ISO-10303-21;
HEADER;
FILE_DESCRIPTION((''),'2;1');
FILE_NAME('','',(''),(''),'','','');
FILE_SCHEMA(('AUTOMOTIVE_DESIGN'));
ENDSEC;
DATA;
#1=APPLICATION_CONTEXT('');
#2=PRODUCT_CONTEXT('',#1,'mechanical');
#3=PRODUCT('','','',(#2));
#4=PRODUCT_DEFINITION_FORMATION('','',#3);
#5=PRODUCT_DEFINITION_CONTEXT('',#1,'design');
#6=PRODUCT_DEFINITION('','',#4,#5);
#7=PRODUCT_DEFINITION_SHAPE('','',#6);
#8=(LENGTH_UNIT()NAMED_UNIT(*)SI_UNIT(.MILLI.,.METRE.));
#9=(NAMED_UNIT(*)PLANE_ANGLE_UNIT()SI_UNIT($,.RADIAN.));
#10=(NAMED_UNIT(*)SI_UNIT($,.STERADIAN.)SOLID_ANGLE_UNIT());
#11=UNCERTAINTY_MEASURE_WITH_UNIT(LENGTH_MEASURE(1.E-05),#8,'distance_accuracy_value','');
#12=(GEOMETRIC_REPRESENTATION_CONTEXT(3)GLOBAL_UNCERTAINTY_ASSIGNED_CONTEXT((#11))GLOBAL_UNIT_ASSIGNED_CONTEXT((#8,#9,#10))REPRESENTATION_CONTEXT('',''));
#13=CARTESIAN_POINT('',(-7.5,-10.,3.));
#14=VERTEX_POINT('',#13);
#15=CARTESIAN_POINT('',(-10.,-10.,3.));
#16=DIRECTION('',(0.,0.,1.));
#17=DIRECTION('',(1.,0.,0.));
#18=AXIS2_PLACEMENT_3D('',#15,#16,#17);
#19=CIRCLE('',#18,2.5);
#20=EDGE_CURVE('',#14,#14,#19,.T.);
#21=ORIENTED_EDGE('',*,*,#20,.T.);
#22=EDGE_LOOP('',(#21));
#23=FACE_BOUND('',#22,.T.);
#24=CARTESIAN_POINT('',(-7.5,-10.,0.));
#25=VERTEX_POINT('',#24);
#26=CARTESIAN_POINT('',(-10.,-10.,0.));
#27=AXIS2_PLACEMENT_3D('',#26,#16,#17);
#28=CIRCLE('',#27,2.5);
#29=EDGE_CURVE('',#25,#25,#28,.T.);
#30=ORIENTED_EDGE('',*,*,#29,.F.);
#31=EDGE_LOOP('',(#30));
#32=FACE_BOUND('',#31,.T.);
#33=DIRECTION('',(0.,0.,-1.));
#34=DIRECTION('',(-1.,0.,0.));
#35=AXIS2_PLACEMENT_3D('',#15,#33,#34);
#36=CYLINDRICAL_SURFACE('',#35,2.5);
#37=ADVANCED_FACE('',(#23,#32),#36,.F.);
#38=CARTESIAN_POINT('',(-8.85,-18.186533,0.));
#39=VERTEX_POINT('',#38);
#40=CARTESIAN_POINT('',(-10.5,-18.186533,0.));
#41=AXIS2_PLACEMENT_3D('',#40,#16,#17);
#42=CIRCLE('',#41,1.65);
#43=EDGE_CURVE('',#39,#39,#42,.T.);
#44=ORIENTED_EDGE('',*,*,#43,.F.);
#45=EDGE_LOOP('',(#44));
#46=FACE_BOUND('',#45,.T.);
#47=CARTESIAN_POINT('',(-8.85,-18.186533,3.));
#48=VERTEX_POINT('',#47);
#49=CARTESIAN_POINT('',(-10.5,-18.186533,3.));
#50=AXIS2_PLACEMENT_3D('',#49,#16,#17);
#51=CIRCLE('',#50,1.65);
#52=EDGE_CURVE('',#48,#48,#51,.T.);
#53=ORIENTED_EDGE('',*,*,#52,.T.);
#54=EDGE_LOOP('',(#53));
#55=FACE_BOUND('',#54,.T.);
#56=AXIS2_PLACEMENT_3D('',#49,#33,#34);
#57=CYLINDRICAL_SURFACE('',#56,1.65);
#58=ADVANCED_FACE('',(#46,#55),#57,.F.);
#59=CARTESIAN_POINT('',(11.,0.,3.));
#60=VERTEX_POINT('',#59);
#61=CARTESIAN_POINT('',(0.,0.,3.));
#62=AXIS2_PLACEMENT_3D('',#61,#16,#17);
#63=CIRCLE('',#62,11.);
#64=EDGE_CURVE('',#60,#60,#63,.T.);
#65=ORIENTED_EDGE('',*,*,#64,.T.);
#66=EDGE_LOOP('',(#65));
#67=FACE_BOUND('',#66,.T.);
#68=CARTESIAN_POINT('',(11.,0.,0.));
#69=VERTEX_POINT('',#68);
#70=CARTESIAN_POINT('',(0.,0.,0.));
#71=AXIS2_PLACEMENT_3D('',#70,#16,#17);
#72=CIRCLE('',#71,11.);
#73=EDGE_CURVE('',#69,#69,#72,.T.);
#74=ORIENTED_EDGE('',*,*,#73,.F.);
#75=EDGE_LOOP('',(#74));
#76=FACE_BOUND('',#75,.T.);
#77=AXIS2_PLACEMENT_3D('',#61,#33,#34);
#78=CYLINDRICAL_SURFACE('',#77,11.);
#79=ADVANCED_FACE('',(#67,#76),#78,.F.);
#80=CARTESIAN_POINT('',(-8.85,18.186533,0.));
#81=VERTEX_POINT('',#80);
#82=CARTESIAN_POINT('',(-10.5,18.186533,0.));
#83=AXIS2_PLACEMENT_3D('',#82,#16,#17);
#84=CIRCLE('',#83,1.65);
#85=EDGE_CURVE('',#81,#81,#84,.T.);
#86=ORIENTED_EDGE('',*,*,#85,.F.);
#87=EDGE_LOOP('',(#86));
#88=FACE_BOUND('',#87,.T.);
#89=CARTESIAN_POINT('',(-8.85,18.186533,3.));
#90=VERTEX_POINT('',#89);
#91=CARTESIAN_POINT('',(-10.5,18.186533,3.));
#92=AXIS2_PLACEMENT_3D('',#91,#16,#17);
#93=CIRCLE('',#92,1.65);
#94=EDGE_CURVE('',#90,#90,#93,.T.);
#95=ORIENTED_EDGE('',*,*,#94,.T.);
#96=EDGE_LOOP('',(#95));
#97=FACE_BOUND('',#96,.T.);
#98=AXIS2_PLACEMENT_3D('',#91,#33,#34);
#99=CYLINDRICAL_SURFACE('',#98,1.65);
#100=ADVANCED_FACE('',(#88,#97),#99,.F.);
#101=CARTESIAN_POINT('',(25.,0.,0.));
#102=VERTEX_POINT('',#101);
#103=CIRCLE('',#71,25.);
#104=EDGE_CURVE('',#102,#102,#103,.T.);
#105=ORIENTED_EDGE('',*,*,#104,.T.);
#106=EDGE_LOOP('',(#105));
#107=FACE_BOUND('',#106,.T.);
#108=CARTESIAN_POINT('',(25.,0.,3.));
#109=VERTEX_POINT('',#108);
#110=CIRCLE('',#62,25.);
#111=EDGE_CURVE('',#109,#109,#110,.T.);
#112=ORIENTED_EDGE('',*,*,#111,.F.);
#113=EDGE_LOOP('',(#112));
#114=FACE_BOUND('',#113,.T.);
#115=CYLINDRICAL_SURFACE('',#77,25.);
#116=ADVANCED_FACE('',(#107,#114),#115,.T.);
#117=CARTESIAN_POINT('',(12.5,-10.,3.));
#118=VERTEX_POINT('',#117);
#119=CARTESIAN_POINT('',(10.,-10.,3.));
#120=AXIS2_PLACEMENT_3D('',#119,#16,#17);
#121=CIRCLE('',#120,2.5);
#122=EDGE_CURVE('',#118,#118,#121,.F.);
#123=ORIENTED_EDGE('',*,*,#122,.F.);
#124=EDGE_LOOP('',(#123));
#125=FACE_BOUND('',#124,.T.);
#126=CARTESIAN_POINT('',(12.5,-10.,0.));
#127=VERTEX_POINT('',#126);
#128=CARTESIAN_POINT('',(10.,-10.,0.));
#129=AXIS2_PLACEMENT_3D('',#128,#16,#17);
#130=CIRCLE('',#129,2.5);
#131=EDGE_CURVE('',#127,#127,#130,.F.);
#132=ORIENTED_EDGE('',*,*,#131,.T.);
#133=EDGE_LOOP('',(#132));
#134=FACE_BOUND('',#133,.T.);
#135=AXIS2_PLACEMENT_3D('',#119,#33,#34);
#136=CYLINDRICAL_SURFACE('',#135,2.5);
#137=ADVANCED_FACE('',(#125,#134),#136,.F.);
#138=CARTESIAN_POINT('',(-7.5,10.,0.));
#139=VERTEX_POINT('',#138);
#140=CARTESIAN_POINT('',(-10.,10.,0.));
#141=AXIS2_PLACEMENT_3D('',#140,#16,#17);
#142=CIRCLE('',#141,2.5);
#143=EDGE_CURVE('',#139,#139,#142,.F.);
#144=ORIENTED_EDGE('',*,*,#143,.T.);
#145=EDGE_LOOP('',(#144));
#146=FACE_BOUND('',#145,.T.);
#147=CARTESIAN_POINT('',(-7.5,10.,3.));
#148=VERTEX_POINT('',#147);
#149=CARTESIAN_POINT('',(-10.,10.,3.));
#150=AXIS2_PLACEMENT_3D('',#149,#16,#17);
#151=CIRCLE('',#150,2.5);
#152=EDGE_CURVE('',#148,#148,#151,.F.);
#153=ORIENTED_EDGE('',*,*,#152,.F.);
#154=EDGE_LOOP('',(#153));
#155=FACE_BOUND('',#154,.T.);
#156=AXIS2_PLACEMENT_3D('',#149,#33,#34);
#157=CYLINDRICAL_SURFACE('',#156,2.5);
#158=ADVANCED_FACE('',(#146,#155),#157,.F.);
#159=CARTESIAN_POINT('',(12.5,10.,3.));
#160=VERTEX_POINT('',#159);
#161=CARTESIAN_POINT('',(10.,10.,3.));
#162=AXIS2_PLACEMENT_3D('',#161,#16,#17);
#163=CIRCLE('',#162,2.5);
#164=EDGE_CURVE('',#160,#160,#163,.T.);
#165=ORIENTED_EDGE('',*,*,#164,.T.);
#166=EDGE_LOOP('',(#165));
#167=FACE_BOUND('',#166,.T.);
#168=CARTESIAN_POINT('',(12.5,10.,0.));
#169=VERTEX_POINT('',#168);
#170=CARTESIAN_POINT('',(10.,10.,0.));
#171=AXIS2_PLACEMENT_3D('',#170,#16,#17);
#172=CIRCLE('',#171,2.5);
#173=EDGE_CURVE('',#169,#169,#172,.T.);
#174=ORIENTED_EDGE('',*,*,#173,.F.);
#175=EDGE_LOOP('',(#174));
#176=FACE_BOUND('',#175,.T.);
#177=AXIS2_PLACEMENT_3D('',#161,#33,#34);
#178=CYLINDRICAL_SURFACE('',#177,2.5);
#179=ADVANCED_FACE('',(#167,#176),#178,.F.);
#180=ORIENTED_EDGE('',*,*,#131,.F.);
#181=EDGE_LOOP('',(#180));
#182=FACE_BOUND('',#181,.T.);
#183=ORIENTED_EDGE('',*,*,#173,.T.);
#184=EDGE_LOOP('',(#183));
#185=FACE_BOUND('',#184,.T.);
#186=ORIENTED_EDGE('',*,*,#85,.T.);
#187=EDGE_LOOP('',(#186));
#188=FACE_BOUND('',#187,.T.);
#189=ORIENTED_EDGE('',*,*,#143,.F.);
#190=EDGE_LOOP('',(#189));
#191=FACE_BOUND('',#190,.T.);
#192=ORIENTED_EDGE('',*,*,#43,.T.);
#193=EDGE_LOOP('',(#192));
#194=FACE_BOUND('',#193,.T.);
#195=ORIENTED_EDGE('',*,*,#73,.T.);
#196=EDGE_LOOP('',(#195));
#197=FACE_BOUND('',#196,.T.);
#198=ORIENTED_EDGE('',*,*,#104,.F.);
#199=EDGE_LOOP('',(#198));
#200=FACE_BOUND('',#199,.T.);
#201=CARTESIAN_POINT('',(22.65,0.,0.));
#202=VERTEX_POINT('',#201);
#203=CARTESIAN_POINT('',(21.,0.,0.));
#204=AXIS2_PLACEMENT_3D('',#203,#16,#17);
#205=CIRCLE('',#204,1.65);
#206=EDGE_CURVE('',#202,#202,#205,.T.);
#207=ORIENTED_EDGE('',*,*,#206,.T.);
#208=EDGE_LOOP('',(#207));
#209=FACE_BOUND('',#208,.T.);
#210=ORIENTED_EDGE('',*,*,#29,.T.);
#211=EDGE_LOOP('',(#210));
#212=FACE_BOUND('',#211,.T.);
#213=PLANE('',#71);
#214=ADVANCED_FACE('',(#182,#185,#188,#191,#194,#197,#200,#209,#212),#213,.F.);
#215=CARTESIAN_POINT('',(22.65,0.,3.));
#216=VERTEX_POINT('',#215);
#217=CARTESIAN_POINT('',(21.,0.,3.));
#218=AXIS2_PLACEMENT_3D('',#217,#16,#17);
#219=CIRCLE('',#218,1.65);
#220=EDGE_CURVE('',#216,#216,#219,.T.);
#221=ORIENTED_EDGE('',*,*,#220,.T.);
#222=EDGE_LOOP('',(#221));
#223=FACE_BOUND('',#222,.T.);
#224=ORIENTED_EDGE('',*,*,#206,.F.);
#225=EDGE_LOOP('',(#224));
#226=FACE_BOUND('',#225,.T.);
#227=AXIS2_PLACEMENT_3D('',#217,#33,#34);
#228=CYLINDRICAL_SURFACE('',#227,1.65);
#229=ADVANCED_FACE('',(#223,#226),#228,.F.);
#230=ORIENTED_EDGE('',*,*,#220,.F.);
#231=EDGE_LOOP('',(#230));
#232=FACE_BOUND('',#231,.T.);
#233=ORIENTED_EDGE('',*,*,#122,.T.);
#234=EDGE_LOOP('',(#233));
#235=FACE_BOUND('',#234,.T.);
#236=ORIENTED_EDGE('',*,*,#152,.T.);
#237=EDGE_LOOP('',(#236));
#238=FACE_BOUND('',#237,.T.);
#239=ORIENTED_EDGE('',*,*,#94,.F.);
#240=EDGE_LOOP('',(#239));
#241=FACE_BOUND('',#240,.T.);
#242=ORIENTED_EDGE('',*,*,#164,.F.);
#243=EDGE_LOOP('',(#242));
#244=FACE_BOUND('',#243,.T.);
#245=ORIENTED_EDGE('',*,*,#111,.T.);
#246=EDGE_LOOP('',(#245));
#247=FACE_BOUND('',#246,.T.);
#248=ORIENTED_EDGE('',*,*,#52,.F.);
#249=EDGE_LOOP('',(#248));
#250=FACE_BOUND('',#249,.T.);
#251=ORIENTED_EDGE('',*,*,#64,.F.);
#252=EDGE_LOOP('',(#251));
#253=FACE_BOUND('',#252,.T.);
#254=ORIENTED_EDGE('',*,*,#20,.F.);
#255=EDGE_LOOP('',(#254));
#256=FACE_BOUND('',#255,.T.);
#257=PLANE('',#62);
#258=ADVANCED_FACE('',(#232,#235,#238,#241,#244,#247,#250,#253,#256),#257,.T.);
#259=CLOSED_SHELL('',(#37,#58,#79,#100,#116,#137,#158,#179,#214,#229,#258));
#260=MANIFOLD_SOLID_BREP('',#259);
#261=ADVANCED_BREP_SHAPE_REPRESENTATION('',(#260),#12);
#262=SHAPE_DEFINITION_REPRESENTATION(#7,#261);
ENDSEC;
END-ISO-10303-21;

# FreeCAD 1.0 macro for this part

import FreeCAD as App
import Part
import Sketcher
from FreeCAD import Vector

doc = App.newDocument("Part")
body = doc.addObject("PartDesign::Body", "Body")

sketch1 = body.newObject("Sketcher::SketchObject", "Sketch")
sketch1.AttachmentSupport = (doc.getObject("XY_Plane"), [""])
sketch1.MapMode = "FlatFace"
sketch1.addGeometry(Part.Circle(Vector(0, 0, 0), Vector(0, 0, 1), 25), False)
sketch1.addGeometry(Part.Circle(Vector(-10.5, -18.186533, 0), Vector(0, 0, 1), 1.65), False)
sketch1.addGeometry(Part.Circle(Vector(-10, -10, 0), Vector(0, 0, 1), 2.5), False)
sketch1.addGeometry(Part.Circle(Vector(10, -10, 0), Vector(0, 0, 1), 2.5), False)
sketch1.addGeometry(Part.Circle(Vector(0, 0, 0), Vector(0, 0, 1), 11), False)
sketch1.addGeometry(Part.Circle(Vector(-10, 10, 0), Vector(0, 0, 1), 2.5), False)
sketch1.addGeometry(Part.Circle(Vector(-10.5, 18.186533, 0), Vector(0, 0, 1), 1.65), False)
sketch1.addGeometry(Part.Circle(Vector(21, 0, 0), Vector(0, 0, 1), 1.65), False)
sketch1.addGeometry(Part.Circle(Vector(10, 10, 0), Vector(0, 0, 1), 2.5), False)
sketch1.addConstraint(Sketcher.Constraint("Coincident", 0, 3, -1, 1))
sketch1.addConstraint(Sketcher.Constraint("Coincident", 4, 3, -1, 1))
sketch1.addConstraint(Sketcher.Constraint("Equal", 2, 3))
sketch1.addConstraint(Sketcher.Constraint("Equal", 3, 5))
sketch1.addConstraint(Sketcher.Constraint("Equal", 1, 6))
sketch1.addConstraint(Sketcher.Constraint("Equal", 6, 7))
sketch1.addConstraint(Sketcher.Constraint("Equal", 5, 8))
sketch1.addConstraint(Sketcher.Constraint("Symmetric", 3, 3, 5, 3, -1, 1))
sketch1.addConstraint(Sketcher.Constraint("Symmetric", 2, 3, 8, 3, -1, 1))
sketch1.addConstraint(Sketcher.Constraint("Symmetric", 2, 3, 3, 3, -2))
sketch1.addConstraint(Sketcher.Constraint("Symmetric", 1, 3, 6, 3, -1))
sketch1.addConstraint(Sketcher.Constraint("PointOnObject", 7, 3, -1))
sketch1.addConstraint(Sketcher.Constraint("Diameter", 0, 50.0))
sketch1.addConstraint(Sketcher.Constraint("Diameter", 2, 5.0))
sketch1.addConstraint(Sketcher.Constraint("Diameter", 4, 22.0))
sketch1.addConstraint(Sketcher.Constraint("Diameter", 1, 3.3))
sketch1.addConstraint(Sketcher.Constraint("DistanceX", 2, 3, -1, 1, 10.0))
sketch1.addConstraint(Sketcher.Constraint("DistanceY", 2, 3, -1, 1, 10.0))
sketch1.addConstraint(Sketcher.Constraint("DistanceX", -1, 1, 7, 3, 21.0))
sketch1.addConstraint(Sketcher.Constraint("DistanceX", 1, 3, -1, 1, 10.5))
sketch1.addConstraint(Sketcher.Constraint("DistanceY", 1, 3, -1, 1, 18.186533))
pad1 = body.newObject("PartDesign::Pad", "Pad")
pad1.Profile = sketch1
pad1.Length = 3

doc.recompute()
